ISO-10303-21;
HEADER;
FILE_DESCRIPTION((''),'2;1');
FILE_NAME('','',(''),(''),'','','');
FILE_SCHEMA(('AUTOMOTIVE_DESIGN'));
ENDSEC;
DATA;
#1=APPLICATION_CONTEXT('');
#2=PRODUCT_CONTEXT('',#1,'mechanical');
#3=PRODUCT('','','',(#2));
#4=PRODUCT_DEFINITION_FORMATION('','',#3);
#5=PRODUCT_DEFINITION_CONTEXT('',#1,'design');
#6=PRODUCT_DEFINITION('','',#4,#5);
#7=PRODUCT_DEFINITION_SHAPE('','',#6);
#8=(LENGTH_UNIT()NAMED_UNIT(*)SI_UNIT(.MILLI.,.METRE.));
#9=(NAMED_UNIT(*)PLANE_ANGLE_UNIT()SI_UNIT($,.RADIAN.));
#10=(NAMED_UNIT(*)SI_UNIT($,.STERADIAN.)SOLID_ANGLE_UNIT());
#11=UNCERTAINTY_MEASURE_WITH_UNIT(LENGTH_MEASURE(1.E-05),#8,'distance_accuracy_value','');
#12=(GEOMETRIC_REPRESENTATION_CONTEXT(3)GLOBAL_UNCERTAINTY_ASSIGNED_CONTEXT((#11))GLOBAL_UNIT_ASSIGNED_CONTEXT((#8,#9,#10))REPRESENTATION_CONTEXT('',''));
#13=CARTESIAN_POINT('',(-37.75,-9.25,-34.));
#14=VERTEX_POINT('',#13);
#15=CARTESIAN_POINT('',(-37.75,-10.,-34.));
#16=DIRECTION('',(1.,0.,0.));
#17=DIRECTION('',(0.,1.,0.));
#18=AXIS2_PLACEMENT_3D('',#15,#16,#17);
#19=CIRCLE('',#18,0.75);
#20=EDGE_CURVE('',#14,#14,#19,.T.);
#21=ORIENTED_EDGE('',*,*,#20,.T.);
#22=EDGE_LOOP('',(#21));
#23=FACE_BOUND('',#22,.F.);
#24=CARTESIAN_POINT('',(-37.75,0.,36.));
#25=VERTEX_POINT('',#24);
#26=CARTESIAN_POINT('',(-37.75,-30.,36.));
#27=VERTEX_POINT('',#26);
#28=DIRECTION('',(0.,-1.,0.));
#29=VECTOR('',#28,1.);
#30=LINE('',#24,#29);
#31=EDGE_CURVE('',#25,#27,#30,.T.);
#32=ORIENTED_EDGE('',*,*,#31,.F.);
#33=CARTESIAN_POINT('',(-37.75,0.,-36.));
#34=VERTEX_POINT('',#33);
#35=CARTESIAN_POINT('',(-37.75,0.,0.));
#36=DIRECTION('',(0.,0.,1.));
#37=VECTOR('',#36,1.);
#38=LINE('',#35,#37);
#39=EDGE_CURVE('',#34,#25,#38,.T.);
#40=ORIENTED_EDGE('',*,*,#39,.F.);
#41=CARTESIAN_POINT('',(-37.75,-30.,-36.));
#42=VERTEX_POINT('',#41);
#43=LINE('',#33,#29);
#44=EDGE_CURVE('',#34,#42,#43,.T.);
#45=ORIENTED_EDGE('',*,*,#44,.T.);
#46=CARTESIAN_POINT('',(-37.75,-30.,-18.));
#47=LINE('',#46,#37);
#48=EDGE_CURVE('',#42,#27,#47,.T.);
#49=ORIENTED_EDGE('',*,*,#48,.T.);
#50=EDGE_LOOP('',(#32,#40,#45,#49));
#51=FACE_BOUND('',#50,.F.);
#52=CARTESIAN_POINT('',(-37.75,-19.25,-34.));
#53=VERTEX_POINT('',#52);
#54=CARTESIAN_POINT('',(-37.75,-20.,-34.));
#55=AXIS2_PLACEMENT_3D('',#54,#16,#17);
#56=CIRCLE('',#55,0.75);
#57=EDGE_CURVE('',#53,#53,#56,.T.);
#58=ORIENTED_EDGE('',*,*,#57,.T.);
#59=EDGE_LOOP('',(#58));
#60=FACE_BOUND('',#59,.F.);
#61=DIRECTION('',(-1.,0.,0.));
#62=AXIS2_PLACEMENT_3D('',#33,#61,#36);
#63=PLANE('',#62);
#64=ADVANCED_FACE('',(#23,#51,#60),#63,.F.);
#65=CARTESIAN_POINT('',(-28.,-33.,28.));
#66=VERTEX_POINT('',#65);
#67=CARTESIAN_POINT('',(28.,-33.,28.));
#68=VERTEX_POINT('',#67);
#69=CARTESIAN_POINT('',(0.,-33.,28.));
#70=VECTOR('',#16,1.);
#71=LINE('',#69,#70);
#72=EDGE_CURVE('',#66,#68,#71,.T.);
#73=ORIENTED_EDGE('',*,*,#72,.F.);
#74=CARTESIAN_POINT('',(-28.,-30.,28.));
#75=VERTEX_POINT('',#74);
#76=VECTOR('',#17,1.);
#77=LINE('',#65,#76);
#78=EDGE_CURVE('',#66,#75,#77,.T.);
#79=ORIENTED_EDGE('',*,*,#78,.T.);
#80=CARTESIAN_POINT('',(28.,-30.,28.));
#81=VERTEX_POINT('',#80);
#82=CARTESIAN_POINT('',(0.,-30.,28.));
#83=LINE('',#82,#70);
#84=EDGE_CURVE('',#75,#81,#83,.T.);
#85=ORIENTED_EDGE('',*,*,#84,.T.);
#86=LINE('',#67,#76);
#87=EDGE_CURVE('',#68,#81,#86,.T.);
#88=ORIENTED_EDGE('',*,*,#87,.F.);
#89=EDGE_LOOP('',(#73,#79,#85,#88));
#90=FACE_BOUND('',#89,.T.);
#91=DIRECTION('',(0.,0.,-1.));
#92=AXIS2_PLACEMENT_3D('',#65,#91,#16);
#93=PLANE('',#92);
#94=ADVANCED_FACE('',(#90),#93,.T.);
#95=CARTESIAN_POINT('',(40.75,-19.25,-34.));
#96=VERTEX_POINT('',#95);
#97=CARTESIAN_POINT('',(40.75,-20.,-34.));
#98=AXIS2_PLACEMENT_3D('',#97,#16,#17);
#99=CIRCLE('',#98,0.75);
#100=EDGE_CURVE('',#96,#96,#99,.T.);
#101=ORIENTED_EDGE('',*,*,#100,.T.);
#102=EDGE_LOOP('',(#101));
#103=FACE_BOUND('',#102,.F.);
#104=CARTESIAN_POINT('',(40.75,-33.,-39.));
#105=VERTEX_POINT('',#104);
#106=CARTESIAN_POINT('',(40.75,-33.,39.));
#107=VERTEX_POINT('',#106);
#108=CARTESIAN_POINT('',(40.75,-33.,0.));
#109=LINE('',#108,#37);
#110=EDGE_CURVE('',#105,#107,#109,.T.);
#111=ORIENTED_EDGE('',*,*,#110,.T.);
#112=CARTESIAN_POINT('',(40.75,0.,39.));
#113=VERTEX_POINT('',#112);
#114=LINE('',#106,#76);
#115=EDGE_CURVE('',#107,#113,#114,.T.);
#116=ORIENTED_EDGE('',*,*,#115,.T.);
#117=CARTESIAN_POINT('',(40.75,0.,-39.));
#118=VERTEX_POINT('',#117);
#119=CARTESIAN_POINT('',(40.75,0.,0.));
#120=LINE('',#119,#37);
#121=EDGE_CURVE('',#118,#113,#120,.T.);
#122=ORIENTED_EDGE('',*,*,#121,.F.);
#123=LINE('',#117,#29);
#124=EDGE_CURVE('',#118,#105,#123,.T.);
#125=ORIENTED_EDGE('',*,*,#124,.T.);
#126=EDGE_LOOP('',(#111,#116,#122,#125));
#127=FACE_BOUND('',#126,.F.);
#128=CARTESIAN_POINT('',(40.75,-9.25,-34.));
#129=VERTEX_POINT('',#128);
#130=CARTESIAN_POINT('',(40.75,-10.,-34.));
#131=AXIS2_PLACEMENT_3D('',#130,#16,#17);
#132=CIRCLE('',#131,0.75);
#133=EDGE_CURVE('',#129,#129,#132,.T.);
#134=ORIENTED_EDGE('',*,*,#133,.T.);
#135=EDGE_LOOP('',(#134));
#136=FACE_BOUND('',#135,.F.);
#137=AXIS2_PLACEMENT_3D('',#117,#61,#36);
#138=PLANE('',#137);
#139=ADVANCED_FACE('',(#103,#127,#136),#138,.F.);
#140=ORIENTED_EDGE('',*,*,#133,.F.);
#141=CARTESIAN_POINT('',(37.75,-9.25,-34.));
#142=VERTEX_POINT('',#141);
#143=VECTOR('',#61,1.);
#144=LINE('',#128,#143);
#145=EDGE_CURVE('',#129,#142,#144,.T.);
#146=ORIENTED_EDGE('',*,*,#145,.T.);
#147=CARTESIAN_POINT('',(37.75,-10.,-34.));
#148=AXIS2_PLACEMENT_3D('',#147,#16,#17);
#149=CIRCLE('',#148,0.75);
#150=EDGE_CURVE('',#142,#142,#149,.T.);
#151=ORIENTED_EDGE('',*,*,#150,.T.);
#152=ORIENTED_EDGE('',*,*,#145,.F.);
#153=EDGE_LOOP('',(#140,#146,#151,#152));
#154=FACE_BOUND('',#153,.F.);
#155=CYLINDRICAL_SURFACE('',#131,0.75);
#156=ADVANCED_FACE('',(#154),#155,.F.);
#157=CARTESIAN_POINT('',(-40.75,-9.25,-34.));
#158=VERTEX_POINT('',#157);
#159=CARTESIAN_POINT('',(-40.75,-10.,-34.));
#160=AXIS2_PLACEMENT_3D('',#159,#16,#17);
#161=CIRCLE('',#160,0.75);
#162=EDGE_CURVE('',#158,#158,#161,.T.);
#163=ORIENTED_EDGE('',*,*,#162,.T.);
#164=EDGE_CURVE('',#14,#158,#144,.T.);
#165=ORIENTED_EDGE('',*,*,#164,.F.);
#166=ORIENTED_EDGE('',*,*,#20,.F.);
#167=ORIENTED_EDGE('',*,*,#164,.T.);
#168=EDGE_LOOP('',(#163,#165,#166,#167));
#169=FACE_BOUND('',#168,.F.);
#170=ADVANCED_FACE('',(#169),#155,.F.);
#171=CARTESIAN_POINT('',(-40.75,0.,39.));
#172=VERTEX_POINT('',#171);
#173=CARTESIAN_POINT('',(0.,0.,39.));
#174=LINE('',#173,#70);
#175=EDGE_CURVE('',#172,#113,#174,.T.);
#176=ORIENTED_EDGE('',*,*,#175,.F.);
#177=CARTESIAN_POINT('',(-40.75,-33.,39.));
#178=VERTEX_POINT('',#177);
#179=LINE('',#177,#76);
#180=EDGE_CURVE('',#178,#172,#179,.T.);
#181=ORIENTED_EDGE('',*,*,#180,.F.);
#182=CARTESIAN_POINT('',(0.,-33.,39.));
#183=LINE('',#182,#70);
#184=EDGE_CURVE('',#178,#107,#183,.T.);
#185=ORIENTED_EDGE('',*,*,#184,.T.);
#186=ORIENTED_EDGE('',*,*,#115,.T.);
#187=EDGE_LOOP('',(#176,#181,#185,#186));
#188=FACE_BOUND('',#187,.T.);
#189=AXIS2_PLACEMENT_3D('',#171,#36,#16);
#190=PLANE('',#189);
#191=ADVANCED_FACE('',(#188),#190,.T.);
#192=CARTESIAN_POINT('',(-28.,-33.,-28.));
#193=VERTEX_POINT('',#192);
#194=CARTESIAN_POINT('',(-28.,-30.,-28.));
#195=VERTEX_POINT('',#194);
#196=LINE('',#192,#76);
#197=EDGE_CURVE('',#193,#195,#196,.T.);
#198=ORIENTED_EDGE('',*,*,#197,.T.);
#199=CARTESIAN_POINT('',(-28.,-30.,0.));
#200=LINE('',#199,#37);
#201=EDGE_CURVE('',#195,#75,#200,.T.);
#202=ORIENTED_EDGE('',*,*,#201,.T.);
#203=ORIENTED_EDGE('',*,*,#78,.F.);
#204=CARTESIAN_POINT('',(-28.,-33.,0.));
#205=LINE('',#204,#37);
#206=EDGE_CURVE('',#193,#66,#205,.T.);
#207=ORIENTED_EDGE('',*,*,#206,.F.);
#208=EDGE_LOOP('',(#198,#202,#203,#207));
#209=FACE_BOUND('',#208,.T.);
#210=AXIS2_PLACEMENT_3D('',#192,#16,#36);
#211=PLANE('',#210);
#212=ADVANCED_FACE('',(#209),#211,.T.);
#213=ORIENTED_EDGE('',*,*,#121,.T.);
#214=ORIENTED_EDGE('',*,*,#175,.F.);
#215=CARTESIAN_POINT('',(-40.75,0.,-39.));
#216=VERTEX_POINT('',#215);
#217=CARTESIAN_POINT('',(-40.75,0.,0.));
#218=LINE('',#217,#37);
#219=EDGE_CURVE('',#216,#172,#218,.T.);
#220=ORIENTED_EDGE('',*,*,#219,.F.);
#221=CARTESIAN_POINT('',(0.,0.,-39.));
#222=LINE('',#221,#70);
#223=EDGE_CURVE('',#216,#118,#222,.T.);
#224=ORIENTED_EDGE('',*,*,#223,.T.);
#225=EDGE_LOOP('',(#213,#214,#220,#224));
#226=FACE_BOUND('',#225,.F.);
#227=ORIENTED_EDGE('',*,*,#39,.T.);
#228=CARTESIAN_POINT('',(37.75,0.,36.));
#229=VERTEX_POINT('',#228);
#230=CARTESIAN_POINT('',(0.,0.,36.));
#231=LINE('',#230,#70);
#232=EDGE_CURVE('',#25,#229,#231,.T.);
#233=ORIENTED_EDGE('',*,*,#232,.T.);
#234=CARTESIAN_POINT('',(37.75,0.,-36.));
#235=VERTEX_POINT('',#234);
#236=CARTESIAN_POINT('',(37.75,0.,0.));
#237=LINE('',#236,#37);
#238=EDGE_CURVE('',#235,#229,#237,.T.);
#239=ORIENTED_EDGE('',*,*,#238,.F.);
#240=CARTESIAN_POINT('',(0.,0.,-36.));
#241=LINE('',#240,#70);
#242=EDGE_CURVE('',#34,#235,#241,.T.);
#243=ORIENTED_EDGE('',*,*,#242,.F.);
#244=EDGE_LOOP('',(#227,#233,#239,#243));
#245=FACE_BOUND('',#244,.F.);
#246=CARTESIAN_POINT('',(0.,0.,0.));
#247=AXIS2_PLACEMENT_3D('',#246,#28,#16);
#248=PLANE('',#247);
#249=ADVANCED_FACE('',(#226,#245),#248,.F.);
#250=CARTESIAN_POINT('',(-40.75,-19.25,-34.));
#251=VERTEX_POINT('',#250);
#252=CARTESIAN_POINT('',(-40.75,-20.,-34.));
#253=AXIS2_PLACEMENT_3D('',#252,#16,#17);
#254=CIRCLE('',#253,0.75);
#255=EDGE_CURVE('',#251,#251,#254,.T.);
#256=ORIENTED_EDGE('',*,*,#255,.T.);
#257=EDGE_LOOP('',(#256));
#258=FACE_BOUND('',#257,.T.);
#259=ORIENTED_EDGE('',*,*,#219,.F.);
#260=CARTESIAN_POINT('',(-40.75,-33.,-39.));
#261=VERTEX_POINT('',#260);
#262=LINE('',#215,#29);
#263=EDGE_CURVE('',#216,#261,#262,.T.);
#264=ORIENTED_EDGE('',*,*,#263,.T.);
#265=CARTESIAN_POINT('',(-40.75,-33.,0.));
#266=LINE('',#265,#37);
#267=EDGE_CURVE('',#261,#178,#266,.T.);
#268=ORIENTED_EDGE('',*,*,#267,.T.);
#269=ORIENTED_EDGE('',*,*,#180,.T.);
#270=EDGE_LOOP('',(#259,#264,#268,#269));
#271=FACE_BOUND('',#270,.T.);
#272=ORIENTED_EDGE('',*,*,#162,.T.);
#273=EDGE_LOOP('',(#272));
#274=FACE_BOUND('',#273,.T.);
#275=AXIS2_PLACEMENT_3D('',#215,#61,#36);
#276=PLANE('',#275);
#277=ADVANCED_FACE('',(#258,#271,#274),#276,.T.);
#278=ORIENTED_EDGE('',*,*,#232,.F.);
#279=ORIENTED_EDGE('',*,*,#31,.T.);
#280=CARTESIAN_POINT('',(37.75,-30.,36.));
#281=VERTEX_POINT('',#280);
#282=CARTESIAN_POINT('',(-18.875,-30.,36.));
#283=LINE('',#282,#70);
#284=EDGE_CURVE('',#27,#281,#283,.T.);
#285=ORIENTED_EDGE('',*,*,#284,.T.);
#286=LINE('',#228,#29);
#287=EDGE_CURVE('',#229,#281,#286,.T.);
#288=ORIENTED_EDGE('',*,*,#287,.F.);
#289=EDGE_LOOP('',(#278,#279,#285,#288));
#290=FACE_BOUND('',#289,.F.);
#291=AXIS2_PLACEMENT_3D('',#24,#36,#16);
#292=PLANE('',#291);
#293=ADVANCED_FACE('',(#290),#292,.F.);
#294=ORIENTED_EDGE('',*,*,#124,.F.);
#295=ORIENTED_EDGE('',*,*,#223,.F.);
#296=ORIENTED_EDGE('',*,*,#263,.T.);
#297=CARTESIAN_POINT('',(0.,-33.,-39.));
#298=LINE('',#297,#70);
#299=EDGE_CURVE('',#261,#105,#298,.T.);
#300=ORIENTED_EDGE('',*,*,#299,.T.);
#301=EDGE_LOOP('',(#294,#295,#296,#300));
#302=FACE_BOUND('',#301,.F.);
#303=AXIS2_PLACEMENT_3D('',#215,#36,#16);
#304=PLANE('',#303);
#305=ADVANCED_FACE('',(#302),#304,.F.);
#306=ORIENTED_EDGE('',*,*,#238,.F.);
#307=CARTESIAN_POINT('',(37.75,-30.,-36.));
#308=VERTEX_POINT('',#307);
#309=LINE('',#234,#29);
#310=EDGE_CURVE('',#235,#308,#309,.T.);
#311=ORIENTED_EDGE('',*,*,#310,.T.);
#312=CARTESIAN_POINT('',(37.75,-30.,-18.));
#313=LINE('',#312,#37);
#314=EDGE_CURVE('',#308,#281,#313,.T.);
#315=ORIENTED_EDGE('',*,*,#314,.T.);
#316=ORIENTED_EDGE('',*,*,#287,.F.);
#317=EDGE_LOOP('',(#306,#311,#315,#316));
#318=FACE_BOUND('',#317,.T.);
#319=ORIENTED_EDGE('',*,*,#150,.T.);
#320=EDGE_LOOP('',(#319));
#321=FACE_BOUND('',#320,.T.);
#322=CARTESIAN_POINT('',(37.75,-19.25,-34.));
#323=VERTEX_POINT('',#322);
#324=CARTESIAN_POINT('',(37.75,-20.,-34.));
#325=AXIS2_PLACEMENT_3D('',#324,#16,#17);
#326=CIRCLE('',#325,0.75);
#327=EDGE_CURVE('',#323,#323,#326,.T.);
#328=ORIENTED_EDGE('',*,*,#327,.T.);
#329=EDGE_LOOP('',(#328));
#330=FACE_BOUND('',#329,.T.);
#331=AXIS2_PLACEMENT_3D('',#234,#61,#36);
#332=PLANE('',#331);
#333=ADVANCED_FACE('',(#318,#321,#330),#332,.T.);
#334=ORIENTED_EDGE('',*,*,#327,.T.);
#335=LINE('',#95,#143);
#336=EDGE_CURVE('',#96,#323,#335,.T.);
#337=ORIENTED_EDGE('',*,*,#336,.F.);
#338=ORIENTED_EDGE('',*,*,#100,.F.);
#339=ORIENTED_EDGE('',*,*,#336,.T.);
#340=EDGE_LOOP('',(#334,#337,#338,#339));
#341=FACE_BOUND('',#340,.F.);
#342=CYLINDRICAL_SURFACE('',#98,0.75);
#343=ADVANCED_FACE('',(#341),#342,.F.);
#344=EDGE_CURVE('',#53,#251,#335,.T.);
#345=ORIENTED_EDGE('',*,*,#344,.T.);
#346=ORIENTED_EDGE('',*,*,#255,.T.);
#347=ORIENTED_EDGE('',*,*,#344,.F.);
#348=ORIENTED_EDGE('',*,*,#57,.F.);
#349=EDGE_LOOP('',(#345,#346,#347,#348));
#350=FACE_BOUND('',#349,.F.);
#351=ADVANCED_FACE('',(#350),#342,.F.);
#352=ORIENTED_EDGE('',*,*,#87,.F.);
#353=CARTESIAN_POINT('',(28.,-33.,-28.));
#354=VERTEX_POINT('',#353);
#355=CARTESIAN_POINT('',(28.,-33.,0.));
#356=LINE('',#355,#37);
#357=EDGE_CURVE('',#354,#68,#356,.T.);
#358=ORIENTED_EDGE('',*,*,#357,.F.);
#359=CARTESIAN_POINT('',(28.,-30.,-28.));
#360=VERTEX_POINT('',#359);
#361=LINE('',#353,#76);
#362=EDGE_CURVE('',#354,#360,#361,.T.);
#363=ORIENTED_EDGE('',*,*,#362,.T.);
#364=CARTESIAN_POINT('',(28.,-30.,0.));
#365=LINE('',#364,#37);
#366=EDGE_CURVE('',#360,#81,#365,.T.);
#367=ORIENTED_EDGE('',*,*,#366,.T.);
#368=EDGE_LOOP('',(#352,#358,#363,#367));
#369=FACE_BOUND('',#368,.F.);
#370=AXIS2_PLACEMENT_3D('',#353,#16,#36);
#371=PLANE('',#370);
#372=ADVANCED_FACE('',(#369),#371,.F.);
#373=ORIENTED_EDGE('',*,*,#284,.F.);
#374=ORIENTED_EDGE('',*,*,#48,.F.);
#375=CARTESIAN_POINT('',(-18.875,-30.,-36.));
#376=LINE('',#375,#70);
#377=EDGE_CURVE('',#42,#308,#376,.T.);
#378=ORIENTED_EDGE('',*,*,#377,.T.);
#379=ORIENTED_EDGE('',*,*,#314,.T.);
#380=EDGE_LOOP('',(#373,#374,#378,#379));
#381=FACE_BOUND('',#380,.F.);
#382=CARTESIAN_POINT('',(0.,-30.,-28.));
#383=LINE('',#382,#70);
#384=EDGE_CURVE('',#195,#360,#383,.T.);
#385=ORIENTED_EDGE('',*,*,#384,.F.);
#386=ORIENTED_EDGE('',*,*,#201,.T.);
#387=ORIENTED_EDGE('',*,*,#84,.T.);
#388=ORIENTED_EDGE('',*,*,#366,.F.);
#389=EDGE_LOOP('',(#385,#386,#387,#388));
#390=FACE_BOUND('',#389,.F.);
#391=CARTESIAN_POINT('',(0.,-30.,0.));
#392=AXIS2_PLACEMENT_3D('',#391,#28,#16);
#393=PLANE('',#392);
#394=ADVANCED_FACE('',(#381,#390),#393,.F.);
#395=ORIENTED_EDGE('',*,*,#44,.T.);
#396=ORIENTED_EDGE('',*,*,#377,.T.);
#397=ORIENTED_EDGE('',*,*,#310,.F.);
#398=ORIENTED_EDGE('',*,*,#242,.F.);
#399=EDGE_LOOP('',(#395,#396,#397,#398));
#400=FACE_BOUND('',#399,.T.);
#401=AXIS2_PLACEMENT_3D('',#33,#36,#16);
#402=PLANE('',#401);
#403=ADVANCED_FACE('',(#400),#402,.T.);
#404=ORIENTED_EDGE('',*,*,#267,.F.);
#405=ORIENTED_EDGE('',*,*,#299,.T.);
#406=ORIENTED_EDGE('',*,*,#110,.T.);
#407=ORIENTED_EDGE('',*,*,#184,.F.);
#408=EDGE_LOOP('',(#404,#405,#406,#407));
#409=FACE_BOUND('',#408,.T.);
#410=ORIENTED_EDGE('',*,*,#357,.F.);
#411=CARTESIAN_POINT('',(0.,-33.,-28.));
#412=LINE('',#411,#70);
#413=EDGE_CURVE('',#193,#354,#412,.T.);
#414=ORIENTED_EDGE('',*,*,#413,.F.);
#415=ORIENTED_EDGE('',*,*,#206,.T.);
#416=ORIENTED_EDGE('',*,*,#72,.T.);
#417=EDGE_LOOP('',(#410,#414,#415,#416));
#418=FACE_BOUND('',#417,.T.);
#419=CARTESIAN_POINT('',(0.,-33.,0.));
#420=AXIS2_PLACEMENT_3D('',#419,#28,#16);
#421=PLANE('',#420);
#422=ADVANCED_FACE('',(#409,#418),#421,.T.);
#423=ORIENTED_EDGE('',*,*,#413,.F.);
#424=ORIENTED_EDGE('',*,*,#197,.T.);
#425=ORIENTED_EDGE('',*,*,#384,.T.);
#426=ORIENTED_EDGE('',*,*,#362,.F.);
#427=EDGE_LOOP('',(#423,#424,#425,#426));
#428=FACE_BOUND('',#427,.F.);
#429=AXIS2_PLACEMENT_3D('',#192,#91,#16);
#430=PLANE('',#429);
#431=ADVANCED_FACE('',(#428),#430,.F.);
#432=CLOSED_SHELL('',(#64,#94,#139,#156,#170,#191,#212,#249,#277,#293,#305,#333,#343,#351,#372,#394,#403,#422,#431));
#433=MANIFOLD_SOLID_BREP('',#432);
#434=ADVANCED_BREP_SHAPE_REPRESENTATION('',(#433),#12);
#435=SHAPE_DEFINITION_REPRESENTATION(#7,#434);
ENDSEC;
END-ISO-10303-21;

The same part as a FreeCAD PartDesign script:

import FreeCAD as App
import Part
import Sketcher
from FreeCAD import Vector

doc = App.newDocument("Part")
body = doc.addObject("PartDesign::Body", "Body")

# Sketch on XZ plane
sketch1 = body.newObject("Sketcher::SketchObject", "Sketch")
sketch1.AttachmentSupport = (doc.getObject("XZ_Plane"), [""])
sketch1.MapMode = "FlatFace"
sketch1.addGeometry([
    Part.LineSegment(Vector(-41, 39, 0), Vector(-41, -39, 0)),  # 0
    Part.LineSegment(Vector(-41, -39, 0), Vector(41, -39, 0)),  # 1
    Part.LineSegment(Vector(41, -39, 0), Vector(41, 39, 0)),  # 2
    Part.LineSegment(Vector(41, 39, 0), Vector(-41, 39, 0)),  # 3
    Part.LineSegment(Vector(38, -36, 0), Vector(-38, -36, 0)),  # 4
    Part.LineSegment(Vector(-38, -36, 0), Vector(-38, 36, 0)),  # 5
    Part.LineSegment(Vector(-38, 36, 0), Vector(38, 36, 0)),  # 6
    Part.LineSegment(Vector(38, 36, 0), Vector(38, -36, 0)),  # 7
], False)
sketch1.addConstraint([
    Sketcher.Constraint("Coincident", 0, 2, 1, 1),
    Sketcher.Constraint("Coincident", 1, 2, 2, 1),
    Sketcher.Constraint("Coincident", 2, 2, 3, 1),
    Sketcher.Constraint("Coincident", 3, 2, 0, 1),
    Sketcher.Constraint("Coincident", 4, 2, 5, 1),
    Sketcher.Constraint("Coincident", 5, 2, 6, 1),
    Sketcher.Constraint("Coincident", 6, 2, 7, 1),
    Sketcher.Constraint("Coincident", 7, 2, 4, 1),
    Sketcher.Constraint("Vertical", 0),
    Sketcher.Constraint("Horizontal", 1),
    Sketcher.Constraint("Vertical", 2),
    Sketcher.Constraint("Horizontal", 3),
    Sketcher.Constraint("Horizontal", 4),
    Sketcher.Constraint("Vertical", 5),
    Sketcher.Constraint("Horizontal", 6),
    Sketcher.Constraint("Vertical", 7),
    Sketcher.Constraint("Symmetric", 0, 2, 2, 2, -1, 1),
    Sketcher.Constraint("Symmetric", 4, 2, 6, 2, -1, 1),
    Sketcher.Constraint("DistanceY", 0, 2, 0, 1, 78.0),
    Sketcher.Constraint("DistanceY", 5, 1, 5, 2, 72.0),
    Sketcher.Constraint("DistanceX", 1, 1, 1, 2, 81.5),
    Sketcher.Constraint("DistanceX", 4, 2, 4, 1, 75.5),
])
pad1 = body.newObject("PartDesign::Pad", "Pad")
pad1.Profile = sketch1
pad1.Length = 33

# Sketch on XZ plane
sketch2 = body.newObject("Sketcher::SketchObject", "Sketch001")
sketch2.AttachmentSupport = (doc.getObject("XZ_Plane"), [""])
sketch2.MapMode = "FlatFace"
sketch2.AttachmentOffset = App.Placement(Vector(0, 0, 33), App.Rotation())
sketch2.addGeometry([
    Part.LineSegment(Vector(-41, 39, 0), Vector(-41, -39, 0)),  # 0
    Part.LineSegment(Vector(-41, -39, 0), Vector(41, -39, 0)),  # 1
    Part.LineSegment(Vector(41, -39, 0), Vector(41, 39, 0)),  # 2
    Part.LineSegment(Vector(41, 39, 0), Vector(-41, 39, 0)),  # 3
    Part.LineSegment(Vector(28, -28, 0), Vector(-28, -28, 0)),  # 4
    Part.LineSegment(Vector(-28, -28, 0), Vector(-28, 28, 0)),  # 5
    Part.LineSegment(Vector(-28, 28, 0), Vector(28, 28, 0)),  # 6
    Part.LineSegment(Vector(28, 28, 0), Vector(28, -28, 0)),  # 7
], False)
sketch2.addConstraint([
    Sketcher.Constraint("Coincident", 0, 2, 1, 1),
    Sketcher.Constraint("Coincident", 1, 2, 2, 1),
    Sketcher.Constraint("Coincident", 2, 2, 3, 1),
    Sketcher.Constraint("Coincident", 3, 2, 0, 1),
    Sketcher.Constraint("Coincident", 4, 2, 5, 1),
    Sketcher.Constraint("Coincident", 5, 2, 6, 1),
    Sketcher.Constraint("Coincident", 6, 2, 7, 1),
    Sketcher.Constraint("Coincident", 7, 2, 4, 1),
    Sketcher.Constraint("Vertical", 0),
    Sketcher.Constraint("Horizontal", 1),
    Sketcher.Constraint("Vertical", 2),
    Sketcher.Constraint("Horizontal", 3),
    Sketcher.Constraint("Horizontal", 4),
    Sketcher.Constraint("Vertical", 5),
    Sketcher.Constraint("Horizontal", 6),
    Sketcher.Constraint("Vertical", 7),
    Sketcher.Constraint("Symmetric", 0, 2, 2, 2, -1, 1),
    Sketcher.Constraint("Symmetric", 4, 2, 6, 2, -1, 1),
    Sketcher.Constraint("Equal", 6, 5),
    Sketcher.Constraint("DistanceX", 4, 2, 4, 1, 56.0),
    Sketcher.Constraint("DistanceY", 0, 2, 0, 1, 78.0),
    Sketcher.Constraint("DistanceX", 1, 1, 1, 2, 81.5),
])
pad2 = body.newObject("PartDesign::Pad", "Pad001")
pad2.Profile = sketch2
pad2.Length = 3
pad2.Reversed = True

# Sketch on YZ plane
sketch3 = body.newObject("Sketcher::SketchObject", "Sketch002")
sketch3.AttachmentSupport = (doc.getObject("YZ_Plane"), [""])
sketch3.MapMode = "FlatFace"
sketch3.AttachmentOffset = App.Placement(Vector(0, 0, 40.75), App.Rotation())
sketch3.addGeometry([
    Part.Circle(Vector(-10, -34, 0), Vector(0, 0, 1), 0.8),
    Part.Circle(Vector(-20, -34, 0), Vector(0, 0, 1), 0.8),
], False)
sketch3.addConstraint([
    Sketcher.Constraint("Equal", 0, 1),
    Sketcher.Constraint("Horizontal", 0, 3, 1, 3),
    Sketcher.Constraint("Diameter", 0, 1.5),
    Sketcher.Constraint("DistanceX", 0, 3, -1, 1, 10.0),
    Sketcher.Constraint("DistanceY", 0, 3, -1, 1, 34.0),
    Sketcher.Constraint("DistanceX", 1, 3, -1, 1, 20.0),
])
pocket1 = body.newObject("PartDesign::Pocket", "Pocket")
pocket1.Profile = sketch3
pocket1.Length = 111.5

doc.recompute()
